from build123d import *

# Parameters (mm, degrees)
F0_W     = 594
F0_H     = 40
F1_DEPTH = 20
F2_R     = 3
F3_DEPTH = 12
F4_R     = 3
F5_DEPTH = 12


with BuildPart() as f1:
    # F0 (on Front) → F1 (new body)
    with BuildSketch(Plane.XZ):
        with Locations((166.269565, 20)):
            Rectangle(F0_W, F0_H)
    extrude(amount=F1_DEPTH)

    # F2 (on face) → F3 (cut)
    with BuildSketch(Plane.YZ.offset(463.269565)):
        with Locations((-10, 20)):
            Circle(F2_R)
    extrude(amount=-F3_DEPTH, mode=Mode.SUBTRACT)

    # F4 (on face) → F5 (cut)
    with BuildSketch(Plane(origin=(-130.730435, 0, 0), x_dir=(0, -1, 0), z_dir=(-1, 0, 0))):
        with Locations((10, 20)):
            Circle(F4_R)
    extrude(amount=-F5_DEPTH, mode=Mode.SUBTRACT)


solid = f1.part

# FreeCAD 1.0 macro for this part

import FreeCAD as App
import Part
import Sketcher
Q = App.Units.Quantity


def add_polygon(sketch, points):
    """Adds a closed chain of lines whose ends are joined by coincident constraints."""
    first, n = sketch.GeometryCount, len(points)
    for a, b in zip(points, points[1:] + points[:1]):
        sketch.addGeometry(Part.LineSegment(App.Vector(*a, 0), App.Vector(*b, 0)), False)
    for i in range(n):
        sketch.addConstraint(Sketcher.Constraint("Coincident", first + i, 2, first + (i + 1) % n, 1))

doc = App.newDocument("Part")
params = doc.addObject("Spreadsheet::Sheet", "Params")
for row, (alias, value) in enumerate([
    ("sketch1_width", "594 mm"),
    ("sketch1_height", "40 mm"),
    ("pad1_length", "20 mm"),
    ("sketch2_diameter", "6 mm"),
    ("pocket1_length", "12 mm"),
    ("sketch3_diameter", "6 mm"),
    ("pocket2_length", "12 mm"),
], start=1):
    params.set(f"A{row}", alias)
    params.set(f"B{row}", "=" + value)
    params.setAlias(f"B{row}", alias)

body = doc.addObject("PartDesign::Body", "Body")

# Sketch on XZ plane
sketch1 = doc.addObject("Sketcher::SketchObject", "Sketch")
body.addObject(sketch1)
sketch1.AttachmentSupport = (doc.XZ_Plane, [""])
sketch1.MapMode = "FlatFace"
add_polygon(sketch1, [(-130.730435, 40), (-130.730435, 0), (463.269565, 0), (463.269565, 40)])  # lines 0-3
sketch1.addConstraint([
    Sketcher.Constraint("Vertical", 0),
    Sketcher.Constraint("Horizontal", 1),
    Sketcher.Constraint("Vertical", 2),
    Sketcher.Constraint("Horizontal", 3),
    Sketcher.Constraint("PointOnObject", 0, 2, -1),
    Sketcher.Constraint("DistanceX", 1, 1, 1, 2, Q("594 mm")),
    Sketcher.Constraint("DistanceY", 0, 2, 0, 1, Q("40 mm")),
    Sketcher.Constraint("DistanceX", 0, 2, -1, 1, Q("130.730435 mm")),
])
sketch1.setExpression("Constraints[9]", "Params.sketch1_width")
sketch1.setExpression("Constraints[10]", "Params.sketch1_height")
pad1 = doc.addObject("PartDesign::Pad", "Pad")
body.addObject(pad1)
pad1.Profile = sketch1
pad1.setExpression("Length", "Params.pad1_length")

# Sketch on YZ plane
sketch2 = doc.addObject("Sketcher::SketchObject", "Sketch001")
body.addObject(sketch2)
sketch2.AttachmentSupport = (doc.YZ_Plane, [""])
sketch2.MapMode = "FlatFace"
sketch2.AttachmentOffset = App.Placement(App.Vector(0, 0, 463.269565), App.Rotation())
sketch2.addGeometry(Part.Circle(App.Vector(-10, 20, 0), App.Vector(0, 0, 1), 3), False)
sketch2.addConstraint([
    Sketcher.Constraint("Diameter", 0, Q("6 mm")),
    Sketcher.Constraint("DistanceX", 0, 3, -1, 1, Q("10 mm")),
    Sketcher.Constraint("DistanceY", -1, 1, 0, 3, Q("20 mm")),
])
sketch2.setExpression("Constraints[0]", "Params.sketch2_diameter")
pocket1 = doc.addObject("PartDesign::Pocket", "Pocket")
body.addObject(pocket1)
pocket1.Profile = sketch2
pocket1.setExpression("Length", "Params.pocket1_length")

# Sketch on YZ plane
sketch3 = doc.addObject("Sketcher::SketchObject", "Sketch002")
body.addObject(sketch3)
sketch3.AttachmentSupport = (doc.YZ_Plane, [""])
sketch3.MapMode = "FlatFace"
sketch3.AttachmentOffset = App.Placement(App.Vector(0, 0, -130.730435), App.Rotation())
sketch3.addGeometry(Part.Circle(App.Vector(-10, 20, 0), App.Vector(0, 0, 1), 3), False)
sketch3.addConstraint([
    Sketcher.Constraint("Diameter", 0, Q("6 mm")),
    Sketcher.Constraint("DistanceX", 0, 3, -1, 1, Q("10 mm")),
    Sketcher.Constraint("DistanceY", -1, 1, 0, 3, Q("20 mm")),
])
sketch3.setExpression("Constraints[0]", "Params.sketch3_diameter")
pocket2 = doc.addObject("PartDesign::Pocket", "Pocket001")
body.addObject(pocket2)
pocket2.Profile = sketch3
pocket2.setExpression("Length", "Params.pocket2_length")
pocket2.Reversed = True

doc.recompute()
